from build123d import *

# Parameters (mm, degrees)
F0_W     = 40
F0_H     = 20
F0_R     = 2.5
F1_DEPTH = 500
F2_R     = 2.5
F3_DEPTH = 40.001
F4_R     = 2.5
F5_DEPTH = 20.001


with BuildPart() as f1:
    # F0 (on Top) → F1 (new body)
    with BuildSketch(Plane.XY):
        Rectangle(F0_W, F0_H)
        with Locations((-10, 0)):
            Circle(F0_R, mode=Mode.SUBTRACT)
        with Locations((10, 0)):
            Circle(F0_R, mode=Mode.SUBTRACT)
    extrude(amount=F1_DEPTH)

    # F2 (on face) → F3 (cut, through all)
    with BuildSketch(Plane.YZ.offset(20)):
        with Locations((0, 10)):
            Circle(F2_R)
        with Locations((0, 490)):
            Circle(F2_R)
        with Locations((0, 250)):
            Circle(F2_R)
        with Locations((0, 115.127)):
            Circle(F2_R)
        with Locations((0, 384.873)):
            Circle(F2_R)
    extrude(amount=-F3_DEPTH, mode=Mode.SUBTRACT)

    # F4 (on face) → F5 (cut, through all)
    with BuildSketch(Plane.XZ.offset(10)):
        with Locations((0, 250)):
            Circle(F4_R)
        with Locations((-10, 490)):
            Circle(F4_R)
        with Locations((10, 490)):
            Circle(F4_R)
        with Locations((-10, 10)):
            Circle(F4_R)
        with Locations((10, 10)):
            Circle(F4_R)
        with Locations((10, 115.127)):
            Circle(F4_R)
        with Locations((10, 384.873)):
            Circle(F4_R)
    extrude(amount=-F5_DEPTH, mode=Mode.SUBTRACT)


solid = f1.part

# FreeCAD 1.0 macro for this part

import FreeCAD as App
import Part
import Sketcher

V = App.Vector


def add_polygon(sketch, points):
    """Adds a closed chain of lines whose ends are joined by coincident constraints."""
    first, n = sketch.GeometryCount, len(points)
    for a, b in zip(points, points[1:] + points[:1]):
        sketch.addGeometry(Part.LineSegment(App.Vector(*a, 0), App.Vector(*b, 0)), False)
    for i in range(n):
        sketch.addConstraint(Sketcher.Constraint("Coincident", first + i, 2, first + (i + 1) % n, 1))

doc = App.newDocument("Part")
body = doc.addObject("PartDesign::Body", "Body")

# Sketch on XY plane
sketch1 = doc.addObject("Sketcher::SketchObject", "Sketch")
body.addObject(sketch1)
sketch1.AttachmentSupport = (doc.XY_Plane, [""])
sketch1.MapMode = "FlatFace"
add_polygon(sketch1, [(-20, 10), (-20, -10), (20, -10), (20, 10)])  # lines 0-3
sketch1.addGeometry(Part.Circle(V(-10, 0, 0), V(0, 0, 1), 2.5), False)  # 4
sketch1.addGeometry(Part.Circle(V(10, 0, 0), V(0, 0, 1), 2.5), False)  # 5
sketch1.addConstraint([
    Sketcher.Constraint("Vertical", 0),
    Sketcher.Constraint("Horizontal", 1),
    Sketcher.Constraint("Vertical", 2),
    Sketcher.Constraint("Horizontal", 3),
    Sketcher.Constraint("Equal", 4, 5),
    Sketcher.Constraint("Symmetric", 4, 3, 5, 3, -1, 1),
    Sketcher.Constraint("Symmetric", 0, 2, 2, 2, -1, 1),
    Sketcher.Constraint("PointOnObject", 4, 3, -1),
    Sketcher.Constraint("Diameter", 4, 5.0),
    Sketcher.Constraint("DistanceX", 1, 1, 1, 2, 40.0),
    Sketcher.Constraint("DistanceY", 0, 2, 0, 1, 20.0),
    Sketcher.Constraint("DistanceX", 4, 3, -1, 1, 10.0),
])
pad1 = doc.addObject("PartDesign::Pad", "Pad")
body.addObject(pad1)
pad1.Profile = sketch1
pad1.Length = 500

# Sketch on YZ plane
sketch2 = doc.addObject("Sketcher::SketchObject", "Sketch001")
body.addObject(sketch2)
sketch2.AttachmentSupport = (doc.YZ_Plane, [""])
sketch2.MapMode = "FlatFace"
sketch2.AttachmentOffset = App.Placement(V(0, 0, 20), App.Rotation())
sketch2.addGeometry([
    Part.Circle(V(0, 10, 0), V(0, 0, 1), 2.5),  # 0
    Part.Circle(V(0, 490, 0), V(0, 0, 1), 2.5),  # 1
    Part.Circle(V(0, 250, 0), V(0, 0, 1), 2.5),  # 2
    Part.Circle(V(0, 115.1, 0), V(0, 0, 1), 2.5),  # 3
    Part.Circle(V(0, 384.9, 0), V(0, 0, 1), 2.5),  # 4
], False)
sketch2.addConstraint([
    Sketcher.Constraint("Equal", 0, 1),
    Sketcher.Constraint("Equal", 1, 2),
    Sketcher.Constraint("Equal", 2, 3),
    Sketcher.Constraint("Equal", 3, 4),
    Sketcher.Constraint("PointOnObject", 0, 3, -2),
    Sketcher.Constraint("PointOnObject", 1, 3, -2),
    Sketcher.Constraint("PointOnObject", 2, 3, -2),
    Sketcher.Constraint("PointOnObject", 3, 3, -2),
    Sketcher.Constraint("PointOnObject", 4, 3, -2),
    Sketcher.Constraint("Diameter", 0, 5.0),
    Sketcher.Constraint("DistanceY", -1, 1, 0, 3, 10.0),
    Sketcher.Constraint("DistanceY", -1, 1, 1, 3, 490.0),
    Sketcher.Constraint("DistanceY", -1, 1, 2, 3, 250.0),
    Sketcher.Constraint("DistanceY", -1, 1, 3, 3, 115.127),
    Sketcher.Constraint("DistanceY", -1, 1, 4, 3, 384.873),
])
pocket1 = doc.addObject("PartDesign::Pocket", "Pocket")
body.addObject(pocket1)
pocket1.Profile = sketch2
pocket1.Type = "ThroughAll"

# Sketch on XZ plane
sketch3 = doc.addObject("Sketcher::SketchObject", "Sketch002")
body.addObject(sketch3)
sketch3.AttachmentSupport = (doc.XZ_Plane, [""])
sketch3.MapMode = "FlatFace"
sketch3.AttachmentOffset = App.Placement(V(0, 0, 10), App.Rotation())
sketch3.addGeometry([
    Part.Circle(V(0, 250, 0), V(0, 0, 1), 2.5),  # 0
    Part.Circle(V(-10, 490, 0), V(0, 0, 1), 2.5),  # 1
    Part.Circle(V(10, 490, 0), V(0, 0, 1), 2.5),  # 2
    Part.Circle(V(-10, 10, 0), V(0, 0, 1), 2.5),  # 3
    Part.Circle(V(10, 10, 0), V(0, 0, 1), 2.5),  # 4
    Part.Circle(V(10, 115.1, 0), V(0, 0, 1), 2.5),  # 5
    Part.Circle(V(10, 384.9, 0), V(0, 0, 1), 2.5),  # 6
], False)
sketch3.addConstraint([
    Sketcher.Constraint("Equal", 0, 1),
    Sketcher.Constraint("Equal", 1, 2),
    Sketcher.Constraint("Equal", 2, 3),
    Sketcher.Constraint("Equal", 3, 4),
    Sketcher.Constraint("Equal", 4, 5),
    Sketcher.Constraint("Equal", 5, 6),
    Sketcher.Constraint("Symmetric", 1, 3, 2, 3, -2),
    Sketcher.Constraint("Symmetric", 3, 3, 4, 3, -2),
    Sketcher.Constraint("PointOnObject", 0, 3, -2),
    Sketcher.Constraint("Vertical", 1, 3, 3, 3),
    Sketcher.Constraint("Vertical", 4, 3, 5, 3),
    Sketcher.Constraint("Vertical", 5, 3, 6, 3),
    Sketcher.Constraint("Diameter", 0, 5.0),
    Sketcher.Constraint("DistanceY", -1, 1, 0, 3, 250.0),
    Sketcher.Constraint("DistanceX", 1, 3, -1, 1, 10.0),
    Sketcher.Constraint("DistanceY", -1, 1, 1, 3, 490.0),
    Sketcher.Constraint("DistanceY", -1, 1, 3, 3, 10.0),
    Sketcher.Constraint("DistanceY", -1, 1, 5, 3, 115.127),
    Sketcher.Constraint("DistanceY", -1, 1, 6, 3, 384.873),
])
pocket2 = doc.addObject("PartDesign::Pocket", "Pocket001")
body.addObject(pocket2)
pocket2.Profile = sketch3
pocket2.Type = "ThroughAll"

doc.recompute()
